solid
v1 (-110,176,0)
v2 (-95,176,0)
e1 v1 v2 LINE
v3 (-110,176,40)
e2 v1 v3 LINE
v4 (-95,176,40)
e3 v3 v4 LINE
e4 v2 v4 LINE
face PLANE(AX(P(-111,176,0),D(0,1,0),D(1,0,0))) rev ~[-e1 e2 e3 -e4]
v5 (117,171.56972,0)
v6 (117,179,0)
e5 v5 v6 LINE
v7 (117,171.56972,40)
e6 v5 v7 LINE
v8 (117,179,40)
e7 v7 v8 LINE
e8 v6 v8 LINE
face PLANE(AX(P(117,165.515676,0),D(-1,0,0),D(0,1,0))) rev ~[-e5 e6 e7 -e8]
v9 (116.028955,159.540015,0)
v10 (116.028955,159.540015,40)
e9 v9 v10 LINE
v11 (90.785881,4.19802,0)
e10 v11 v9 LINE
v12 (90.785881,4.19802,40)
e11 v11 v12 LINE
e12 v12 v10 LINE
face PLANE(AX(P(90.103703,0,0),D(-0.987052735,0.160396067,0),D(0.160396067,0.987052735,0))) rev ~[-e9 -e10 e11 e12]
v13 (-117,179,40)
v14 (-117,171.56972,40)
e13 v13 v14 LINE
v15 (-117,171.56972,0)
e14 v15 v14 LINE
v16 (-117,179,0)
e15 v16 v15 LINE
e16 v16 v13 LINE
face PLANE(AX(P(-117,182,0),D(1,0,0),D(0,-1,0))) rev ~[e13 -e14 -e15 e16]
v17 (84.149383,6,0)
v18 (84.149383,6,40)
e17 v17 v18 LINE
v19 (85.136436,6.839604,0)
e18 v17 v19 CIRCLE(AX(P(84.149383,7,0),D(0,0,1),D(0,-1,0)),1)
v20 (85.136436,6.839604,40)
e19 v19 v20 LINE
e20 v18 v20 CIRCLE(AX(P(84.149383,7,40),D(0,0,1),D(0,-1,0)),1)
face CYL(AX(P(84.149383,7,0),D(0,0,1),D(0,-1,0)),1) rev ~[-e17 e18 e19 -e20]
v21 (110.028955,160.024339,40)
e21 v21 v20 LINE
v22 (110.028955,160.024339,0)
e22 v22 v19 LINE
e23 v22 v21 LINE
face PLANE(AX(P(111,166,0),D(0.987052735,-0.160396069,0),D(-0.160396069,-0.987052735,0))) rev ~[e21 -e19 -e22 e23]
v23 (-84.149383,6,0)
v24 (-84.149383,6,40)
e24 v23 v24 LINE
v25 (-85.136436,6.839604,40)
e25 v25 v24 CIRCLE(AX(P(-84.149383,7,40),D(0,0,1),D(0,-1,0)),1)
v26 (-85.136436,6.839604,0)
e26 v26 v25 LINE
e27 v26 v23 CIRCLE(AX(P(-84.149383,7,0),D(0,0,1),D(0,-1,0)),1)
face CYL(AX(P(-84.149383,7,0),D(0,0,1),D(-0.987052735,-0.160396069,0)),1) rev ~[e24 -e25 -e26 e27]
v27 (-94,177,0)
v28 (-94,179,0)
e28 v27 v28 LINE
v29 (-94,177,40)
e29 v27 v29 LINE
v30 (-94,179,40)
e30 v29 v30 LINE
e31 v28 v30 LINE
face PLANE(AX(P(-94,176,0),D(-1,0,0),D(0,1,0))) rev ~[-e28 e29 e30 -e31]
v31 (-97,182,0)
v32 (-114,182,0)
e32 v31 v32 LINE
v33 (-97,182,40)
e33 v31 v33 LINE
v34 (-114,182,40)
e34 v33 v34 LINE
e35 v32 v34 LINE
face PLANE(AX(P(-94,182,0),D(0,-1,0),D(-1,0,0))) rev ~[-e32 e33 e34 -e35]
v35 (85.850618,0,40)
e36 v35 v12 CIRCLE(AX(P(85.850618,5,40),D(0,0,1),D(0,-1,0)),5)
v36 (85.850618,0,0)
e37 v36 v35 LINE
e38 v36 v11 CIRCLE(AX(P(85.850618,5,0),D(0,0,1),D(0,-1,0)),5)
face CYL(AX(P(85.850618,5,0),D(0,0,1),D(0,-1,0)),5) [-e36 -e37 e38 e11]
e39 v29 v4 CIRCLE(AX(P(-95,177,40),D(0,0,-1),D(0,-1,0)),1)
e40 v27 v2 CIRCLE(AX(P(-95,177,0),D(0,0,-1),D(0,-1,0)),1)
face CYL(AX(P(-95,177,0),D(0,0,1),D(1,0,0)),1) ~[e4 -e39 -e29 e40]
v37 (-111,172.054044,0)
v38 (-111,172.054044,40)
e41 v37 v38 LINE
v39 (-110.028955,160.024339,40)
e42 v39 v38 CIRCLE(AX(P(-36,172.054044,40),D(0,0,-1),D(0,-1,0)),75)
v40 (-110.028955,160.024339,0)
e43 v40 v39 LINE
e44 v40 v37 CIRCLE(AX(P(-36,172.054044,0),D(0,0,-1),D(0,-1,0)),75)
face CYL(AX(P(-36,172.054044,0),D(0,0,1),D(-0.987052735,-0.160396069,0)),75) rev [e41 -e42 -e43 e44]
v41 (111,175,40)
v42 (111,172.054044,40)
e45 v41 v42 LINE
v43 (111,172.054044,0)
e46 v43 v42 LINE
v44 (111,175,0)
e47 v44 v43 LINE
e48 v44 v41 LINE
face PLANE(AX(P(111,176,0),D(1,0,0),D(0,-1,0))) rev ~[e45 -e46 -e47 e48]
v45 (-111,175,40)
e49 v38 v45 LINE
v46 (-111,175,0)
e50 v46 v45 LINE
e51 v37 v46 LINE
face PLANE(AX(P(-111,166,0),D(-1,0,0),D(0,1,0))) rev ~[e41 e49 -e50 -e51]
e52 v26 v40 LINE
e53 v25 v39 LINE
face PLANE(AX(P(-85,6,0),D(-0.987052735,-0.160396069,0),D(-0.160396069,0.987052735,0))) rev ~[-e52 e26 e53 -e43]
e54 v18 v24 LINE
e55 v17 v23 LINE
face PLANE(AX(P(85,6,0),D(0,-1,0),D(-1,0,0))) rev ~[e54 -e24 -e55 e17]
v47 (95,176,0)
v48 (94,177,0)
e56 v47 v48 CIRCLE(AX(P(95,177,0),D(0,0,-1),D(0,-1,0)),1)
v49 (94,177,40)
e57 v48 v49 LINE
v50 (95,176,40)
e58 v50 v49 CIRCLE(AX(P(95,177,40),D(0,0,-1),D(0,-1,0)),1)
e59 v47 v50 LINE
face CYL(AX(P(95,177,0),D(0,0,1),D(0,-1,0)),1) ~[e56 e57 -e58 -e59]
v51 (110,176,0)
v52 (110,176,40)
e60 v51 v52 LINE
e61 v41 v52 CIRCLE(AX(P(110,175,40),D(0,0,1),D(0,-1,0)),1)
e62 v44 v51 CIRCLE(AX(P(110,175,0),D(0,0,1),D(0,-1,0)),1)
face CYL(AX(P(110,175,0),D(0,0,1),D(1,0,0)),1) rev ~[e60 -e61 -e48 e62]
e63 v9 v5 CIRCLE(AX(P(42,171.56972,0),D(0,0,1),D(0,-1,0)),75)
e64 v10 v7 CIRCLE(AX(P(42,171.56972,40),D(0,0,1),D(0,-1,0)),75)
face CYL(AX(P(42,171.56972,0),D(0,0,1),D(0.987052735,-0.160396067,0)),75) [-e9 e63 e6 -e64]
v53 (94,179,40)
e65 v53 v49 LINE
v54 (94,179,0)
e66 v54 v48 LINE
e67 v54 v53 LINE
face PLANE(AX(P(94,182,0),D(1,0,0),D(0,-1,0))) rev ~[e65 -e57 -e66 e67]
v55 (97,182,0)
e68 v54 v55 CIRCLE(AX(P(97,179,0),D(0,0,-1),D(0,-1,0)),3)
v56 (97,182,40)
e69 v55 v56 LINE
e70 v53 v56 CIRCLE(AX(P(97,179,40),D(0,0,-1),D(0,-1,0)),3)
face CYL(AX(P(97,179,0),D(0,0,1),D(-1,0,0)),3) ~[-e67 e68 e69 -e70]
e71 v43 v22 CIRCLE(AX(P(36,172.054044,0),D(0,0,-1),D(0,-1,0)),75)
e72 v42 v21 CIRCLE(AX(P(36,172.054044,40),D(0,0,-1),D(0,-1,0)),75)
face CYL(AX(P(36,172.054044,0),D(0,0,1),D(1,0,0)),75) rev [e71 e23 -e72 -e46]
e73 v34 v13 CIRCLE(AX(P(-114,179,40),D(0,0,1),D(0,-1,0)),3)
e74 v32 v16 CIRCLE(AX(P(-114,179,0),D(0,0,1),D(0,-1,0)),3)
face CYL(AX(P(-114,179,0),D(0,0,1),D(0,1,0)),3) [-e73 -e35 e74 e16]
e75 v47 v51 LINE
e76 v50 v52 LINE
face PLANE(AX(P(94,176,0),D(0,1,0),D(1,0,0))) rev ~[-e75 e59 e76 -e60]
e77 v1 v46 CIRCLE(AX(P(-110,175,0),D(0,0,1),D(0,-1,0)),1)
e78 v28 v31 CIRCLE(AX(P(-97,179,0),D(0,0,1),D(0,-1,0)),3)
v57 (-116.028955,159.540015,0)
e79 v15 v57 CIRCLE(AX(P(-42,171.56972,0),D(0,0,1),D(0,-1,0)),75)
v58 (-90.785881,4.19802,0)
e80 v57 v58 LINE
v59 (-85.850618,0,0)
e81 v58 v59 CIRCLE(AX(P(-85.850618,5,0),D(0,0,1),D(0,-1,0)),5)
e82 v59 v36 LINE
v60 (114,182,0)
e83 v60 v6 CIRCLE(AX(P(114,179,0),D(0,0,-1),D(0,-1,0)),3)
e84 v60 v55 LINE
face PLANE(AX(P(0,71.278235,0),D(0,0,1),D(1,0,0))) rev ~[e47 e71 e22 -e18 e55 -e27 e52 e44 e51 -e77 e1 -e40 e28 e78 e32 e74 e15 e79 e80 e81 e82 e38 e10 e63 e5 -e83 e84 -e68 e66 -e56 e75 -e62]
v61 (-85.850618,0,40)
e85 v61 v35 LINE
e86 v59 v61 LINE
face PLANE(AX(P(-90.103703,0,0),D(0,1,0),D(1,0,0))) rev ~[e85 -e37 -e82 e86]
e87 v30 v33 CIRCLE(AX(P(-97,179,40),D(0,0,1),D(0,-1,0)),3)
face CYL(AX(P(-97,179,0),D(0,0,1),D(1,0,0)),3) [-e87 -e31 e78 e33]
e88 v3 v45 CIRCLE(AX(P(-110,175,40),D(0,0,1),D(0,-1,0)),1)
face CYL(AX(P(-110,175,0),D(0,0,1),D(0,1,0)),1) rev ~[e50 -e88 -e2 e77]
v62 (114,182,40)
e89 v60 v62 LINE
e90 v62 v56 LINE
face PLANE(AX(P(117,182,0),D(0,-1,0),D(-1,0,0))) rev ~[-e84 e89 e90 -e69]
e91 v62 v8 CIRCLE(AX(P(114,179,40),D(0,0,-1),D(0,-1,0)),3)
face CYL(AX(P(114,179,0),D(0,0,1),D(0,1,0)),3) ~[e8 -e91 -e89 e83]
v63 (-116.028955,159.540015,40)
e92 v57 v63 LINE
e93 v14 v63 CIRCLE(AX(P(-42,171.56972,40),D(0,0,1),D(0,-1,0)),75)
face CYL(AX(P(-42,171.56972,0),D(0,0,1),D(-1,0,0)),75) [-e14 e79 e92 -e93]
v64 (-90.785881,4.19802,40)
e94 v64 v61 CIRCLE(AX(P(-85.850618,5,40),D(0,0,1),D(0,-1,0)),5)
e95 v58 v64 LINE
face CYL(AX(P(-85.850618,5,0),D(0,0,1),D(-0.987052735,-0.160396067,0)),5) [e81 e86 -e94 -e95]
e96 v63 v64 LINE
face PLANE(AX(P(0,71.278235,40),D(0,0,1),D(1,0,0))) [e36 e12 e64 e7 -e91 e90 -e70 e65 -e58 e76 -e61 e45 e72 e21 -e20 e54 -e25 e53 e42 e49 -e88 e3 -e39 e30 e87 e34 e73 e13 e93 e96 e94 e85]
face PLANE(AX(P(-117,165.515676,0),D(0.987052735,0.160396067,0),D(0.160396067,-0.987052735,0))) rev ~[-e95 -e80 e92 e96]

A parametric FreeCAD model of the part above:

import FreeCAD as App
import Part
import Sketcher
from FreeCAD import Vector
Q = App.Units.Quantity


def edges_at(feature, points):
    """Names of the edges that pass closest to the given points."""
    edges = feature.Shape.Edges
    near = lambda p: min(range(len(edges)), key=lambda i: edges[i].distToShape(Part.Vertex(*p))[0])
    return sorted({f"Edge{near(p) + 1}" for p in points})


def add_polygon(sketch, points):
    """Adds a closed chain of lines whose ends are joined by coincident constraints."""
    first, n = sketch.GeometryCount, len(points)
    for a, b in zip(points, points[1:] + points[:1]):
        sketch.addGeometry(Part.LineSegment(App.Vector(*a, 0), App.Vector(*b, 0)), False)
    for i in range(n):
        sketch.addConstraint(Sketcher.Constraint("Coincident", first + i, 2, first + (i + 1) % n, 1))

doc = App.newDocument("Part")
params = doc.addObject("Spreadsheet::Sheet", "Params")
for row, (alias, value) in enumerate([
    ("sketch1_width", "23 mm"),
    ("sketch1_width2", "17 mm"),
    ("sketch1_width3", "170 mm"),
    ("sketch1_height", "6 mm"),
    ("sketch1_height2", "10 mm"),
    ("pad1_length", "40 mm"),
    ("fillet_radius", "75 mm"),
    ("fillet2_radius", "5 mm"),
    ("fillet3_radius", "1 mm"),
    ("fillet4_radius", "3 mm"),
    ("fillet5_radius", "1 mm"),
], start=1):
    params.set(f"A{row}", alias)
    params.set(f"B{row}", "=" + value)
    params.setAlias(f"B{row}", alias)

body = doc.addObject("PartDesign::Body", "Body")

# Sketch on XY plane
sketch1 = body.newObject("Sketcher::SketchObject", "Sketch")
sketch1.AttachmentSupport = (doc.getObject("XY_Plane"), [""])
sketch1.MapMode = "FlatFace"
add_polygon(sketch1, [(-94, 182), (-117, 182), (-117, 165.515676), (-90.103703, 0), (90.103703, 0), (117, 165.515676), (117, 182), (94, 182), (94, 176), (111, 176), (111, 166), (85, 6), (-85, 6), (-111, 166), (-111, 176), (-94, 176)])  # lines 0-15
sketch1.addConstraint([
    Sketcher.Constraint("Horizontal", 0),
    Sketcher.Constraint("Vertical", 1),
    Sketcher.Constraint("Horizontal", 3),
    Sketcher.Constraint("Vertical", 5),
    Sketcher.Constraint("Horizontal", 6),
    Sketcher.Constraint("Vertical", 7),
    Sketcher.Constraint("Horizontal", 8),
    Sketcher.Constraint("Vertical", 9),
    Sketcher.Constraint("Horizontal", 11),
    Sketcher.Constraint("Vertical", 13),
    Sketcher.Constraint("Horizontal", 14),
    Sketcher.Constraint("Vertical", 15),
    Sketcher.Constraint("Symmetric", 2, 2, 3, 2, -1, 1),
    Sketcher.Constraint("Symmetric", 1, 2, 4, 2, -2),
    Sketcher.Constraint("Symmetric", 9, 2, 12, 2, -2),
    Sketcher.Constraint("Symmetric", 7, 2, 14, 2, -2),
    Sketcher.Constraint("Parallel", 4, 10),
    Sketcher.Constraint("Parallel", 2, 12),
    Sketcher.Constraint("Horizontal", 0, 2, 5, 2),
    Sketcher.Constraint("DistanceX", 0, 2, 0, 1, Q("23 mm")),
    Sketcher.Constraint("DistanceX", 8, 1, 8, 2, Q("17 mm")),
    Sketcher.Constraint("DistanceX", 11, 2, 11, 1, Q("170 mm")),
    Sketcher.Constraint("DistanceY", 7, 2, 7, 1, Q("6 mm")),
    Sketcher.Constraint("DistanceY", 9, 2, 9, 1, Q("10 mm")),
    Sketcher.Constraint("DistanceX", 0, 2, -1, 1, Q("117 mm")),
    Sketcher.Constraint("DistanceY", -1, 1, 0, 2, Q("182 mm")),
    Sketcher.Constraint("DistanceY", -1, 1, 10, 2, Q("6 mm")),
    Sketcher.Constraint("Distance", 2, Q("167.686761 mm")),
])
sketch1.setExpression("Constraints[35]", "Params.sketch1_width")
sketch1.setExpression("Constraints[36]", "Params.sketch1_width2")
sketch1.setExpression("Constraints[37]", "Params.sketch1_width3")
sketch1.setExpression("Constraints[38]", "Params.sketch1_height")
sketch1.setExpression("Constraints[39]", "Params.sketch1_height2")
pad1 = body.newObject("PartDesign::Pad", "Pad")
pad1.Profile = sketch1
pad1.setExpression("Length", "Params.pad1_length")
doc.recompute()

fillet = body.newObject("PartDesign::Fillet", "Fillet")
fillet.Base = (pad1, edges_at(pad1, [
    (117, 165.516, 20),
    (-117, 165.516, 20),
    (111, 166, 20),
    (-111, 166, 20),
]))
fillet.setExpression("Radius", "Params.fillet_radius")
doc.recompute()

fillet2 = body.newObject("PartDesign::Fillet", "Fillet001")
fillet2.Base = (fillet, edges_at(fillet, [(-90.104, 0, 20), (90.104, 0, 20)]))
fillet2.setExpression("Radius", "Params.fillet2_radius")
doc.recompute()

fillet3 = body.newObject("PartDesign::Fillet", "Fillet002")
fillet3.Base = (fillet2, edges_at(fillet2, [(85, 6, 20), (-85, 6, 20)]))
fillet3.setExpression("Radius", "Params.fillet3_radius")
doc.recompute()

fillet4 = body.newObject("PartDesign::Fillet", "Fillet003")
fillet4.Base = (fillet3, edges_at(fillet3, [
    (117, 182, 20),
    (-117, 182, 20),
    (-94, 182, 20),
    (94, 182, 20),
]))
fillet4.setExpression("Radius", "Params.fillet4_radius")
doc.recompute()

fillet5 = body.newObject("PartDesign::Fillet", "Fillet004")
fillet5.Base = (fillet4, edges_at(fillet4, [
    (-94, 176, 20),
    (-111, 176, 20),
    (111, 176, 20),
    (94, 176, 20),
]))
fillet5.setExpression("Radius", "Params.fillet5_radius")

doc.recompute()
